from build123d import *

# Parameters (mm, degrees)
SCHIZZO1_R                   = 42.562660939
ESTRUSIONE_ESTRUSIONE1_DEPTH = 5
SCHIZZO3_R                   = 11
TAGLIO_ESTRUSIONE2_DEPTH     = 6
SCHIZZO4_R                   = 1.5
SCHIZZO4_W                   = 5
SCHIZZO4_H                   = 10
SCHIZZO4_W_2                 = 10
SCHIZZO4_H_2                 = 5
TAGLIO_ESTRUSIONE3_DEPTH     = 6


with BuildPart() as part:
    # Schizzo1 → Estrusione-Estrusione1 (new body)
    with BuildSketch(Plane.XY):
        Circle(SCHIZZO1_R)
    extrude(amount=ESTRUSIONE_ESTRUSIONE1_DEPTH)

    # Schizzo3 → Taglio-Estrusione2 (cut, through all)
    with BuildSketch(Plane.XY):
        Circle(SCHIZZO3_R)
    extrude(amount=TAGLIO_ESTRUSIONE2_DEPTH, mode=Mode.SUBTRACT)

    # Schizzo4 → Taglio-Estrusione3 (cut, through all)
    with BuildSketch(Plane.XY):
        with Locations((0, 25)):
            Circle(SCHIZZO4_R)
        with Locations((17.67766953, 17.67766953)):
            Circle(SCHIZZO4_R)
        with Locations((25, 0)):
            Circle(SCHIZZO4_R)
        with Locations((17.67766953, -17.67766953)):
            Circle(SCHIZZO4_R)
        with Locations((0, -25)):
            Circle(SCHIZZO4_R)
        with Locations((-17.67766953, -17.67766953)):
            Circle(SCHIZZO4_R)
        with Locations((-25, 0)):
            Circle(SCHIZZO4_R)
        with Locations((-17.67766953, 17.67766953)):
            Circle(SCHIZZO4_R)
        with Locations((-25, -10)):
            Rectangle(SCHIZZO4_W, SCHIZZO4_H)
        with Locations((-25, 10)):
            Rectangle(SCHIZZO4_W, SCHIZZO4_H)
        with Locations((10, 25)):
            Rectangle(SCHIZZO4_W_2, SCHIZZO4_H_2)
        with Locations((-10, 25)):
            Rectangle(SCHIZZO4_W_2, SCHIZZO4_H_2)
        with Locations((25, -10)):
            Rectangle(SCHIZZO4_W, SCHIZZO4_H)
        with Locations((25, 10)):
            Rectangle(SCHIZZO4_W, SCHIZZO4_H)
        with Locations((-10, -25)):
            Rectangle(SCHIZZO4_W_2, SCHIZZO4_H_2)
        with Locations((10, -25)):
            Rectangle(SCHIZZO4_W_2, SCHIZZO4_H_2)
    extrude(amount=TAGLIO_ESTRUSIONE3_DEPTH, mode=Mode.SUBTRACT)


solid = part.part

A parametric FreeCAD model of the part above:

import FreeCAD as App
import Part
import Sketcher

V = App.Vector

doc = App.newDocument("Part")
body = doc.addObject("PartDesign::Body", "Body")

# Sketch on XY plane
sketch1 = doc.addObject("Sketcher::SketchObject", "Sketch")
body.addObject(sketch1)
sketch1.AttachmentSupport = (doc.XY_Plane, [""])
sketch1.MapMode = "FlatFace"
sketch1.addGeometry(Part.Circle(V(0, 0, 0), V(0, 0, 1), 43), False)
sketch1.addConstraint([
    Sketcher.Constraint("Coincident", 0, 3, -1, 1),
    Sketcher.Constraint("Diameter", 0, 85.125322),
])
pad1 = doc.addObject("PartDesign::Pad", "Pad")
body.addObject(pad1)
pad1.Profile = sketch1
pad1.Length = 5

# Sketch on XY plane
sketch2 = doc.addObject("Sketcher::SketchObject", "Sketch001")
body.addObject(sketch2)
sketch2.AttachmentSupport = (doc.XY_Plane, [""])
sketch2.MapMode = "FlatFace"
sketch2.addGeometry(Part.Circle(V(0, 0, 0), V(0, 0, 1), 11), False)
sketch2.addConstraint([
    Sketcher.Constraint("Coincident", 0, 3, -1, 1),
    Sketcher.Constraint("Diameter", 0, 22.0),
])
pocket1 = doc.addObject("PartDesign::Pocket", "Pocket")
body.addObject(pocket1)
pocket1.Profile = sketch2
pocket1.Type = "ThroughAll"
pocket1.Reversed = True

# Sketch on XY plane
sketch3 = doc.addObject("Sketcher::SketchObject", "Sketch002")
body.addObject(sketch3)
sketch3.AttachmentSupport = (doc.XY_Plane, [""])
sketch3.MapMode = "FlatFace"
sketch3.addGeometry([
    Part.Circle(V(0, 25, 0), V(0, 0, 1), 1.5),  # 0
    Part.Circle(V(17.7, 17.7, 0), V(0, 0, 1), 1.5),  # 1
    Part.Circle(V(25, 0, 0), V(0, 0, 1), 1.5),  # 2
    Part.Circle(V(17.7, -17.7, 0), V(0, 0, 1), 1.5),  # 3
    Part.Circle(V(0, -25, 0), V(0, 0, 1), 1.5),  # 4
    Part.Circle(V(-17.7, -17.7, 0), V(0, 0, 1), 1.5),  # 5
    Part.Circle(V(-25, 0, 0), V(0, 0, 1), 1.5),  # 6
    Part.Circle(V(-17.7, 17.7, 0), V(0, 0, 1), 1.5),  # 7
    Part.LineSegment(V(-27.5, -5, 0), V(-27.5, -15, 0)),  # 8
    Part.LineSegment(V(-27.5, -15, 0), V(-22.5, -15, 0)),  # 9
    Part.LineSegment(V(-22.5, -15, 0), V(-22.5, -5, 0)),  # 10
    Part.LineSegment(V(-22.5, -5, 0), V(-27.5, -5, 0)),  # 11
    Part.LineSegment(V(-27.5, 15, 0), V(-27.5, 5, 0)),  # 12
    Part.LineSegment(V(-27.5, 5, 0), V(-22.5, 5, 0)),  # 13
    Part.LineSegment(V(-22.5, 5, 0), V(-22.5, 15, 0)),  # 14
    Part.LineSegment(V(-22.5, 15, 0), V(-27.5, 15, 0)),  # 15
    Part.LineSegment(V(5, 27.5, 0), V(5, 22.5, 0)),  # 16
    Part.LineSegment(V(5, 22.5, 0), V(15, 22.5, 0)),  # 17
    Part.LineSegment(V(15, 22.5, 0), V(15, 27.5, 0)),  # 18
    Part.LineSegment(V(15, 27.5, 0), V(5, 27.5, 0)),  # 19
    Part.LineSegment(V(-15, 27.5, 0), V(-15, 22.5, 0)),  # 20
    Part.LineSegment(V(-15, 22.5, 0), V(-5, 22.5, 0)),  # 21
    Part.LineSegment(V(-5, 22.5, 0), V(-5, 27.5, 0)),  # 22
    Part.LineSegment(V(-5, 27.5, 0), V(-15, 27.5, 0)),  # 23
    Part.LineSegment(V(22.5, -5, 0), V(22.5, -15, 0)),  # 24
    Part.LineSegment(V(22.5, -15, 0), V(27.5, -15, 0)),  # 25
    Part.LineSegment(V(27.5, -15, 0), V(27.5, -5, 0)),  # 26
    Part.LineSegment(V(27.5, -5, 0), V(22.5, -5, 0)),  # 27
    Part.LineSegment(V(22.5, 15, 0), V(22.5, 5, 0)),  # 28
    Part.LineSegment(V(22.5, 5, 0), V(27.5, 5, 0)),  # 29
    Part.LineSegment(V(27.5, 5, 0), V(27.5, 15, 0)),  # 30
    Part.LineSegment(V(27.5, 15, 0), V(22.5, 15, 0)),  # 31
    Part.LineSegment(V(-15, -22.5, 0), V(-15, -27.5, 0)),  # 32
    Part.LineSegment(V(-15, -27.5, 0), V(-5, -27.5, 0)),  # 33
    Part.LineSegment(V(-5, -27.5, 0), V(-5, -22.5, 0)),  # 34
    Part.LineSegment(V(-5, -22.5, 0), V(-15, -22.5, 0)),  # 35
    Part.LineSegment(V(5, -22.5, 0), V(5, -27.5, 0)),  # 36
    Part.LineSegment(V(5, -27.5, 0), V(15, -27.5, 0)),  # 37
    Part.LineSegment(V(15, -27.5, 0), V(15, -22.5, 0)),  # 38
    Part.LineSegment(V(15, -22.5, 0), V(5, -22.5, 0)),  # 39
], False)
sketch3.addConstraint([
    Sketcher.Constraint("Coincident", 8, 2, 9, 1),
    Sketcher.Constraint("Coincident", 9, 2, 10, 1),
    Sketcher.Constraint("Coincident", 10, 2, 11, 1),
    Sketcher.Constraint("Coincident", 11, 2, 8, 1),
    Sketcher.Constraint("Coincident", 12, 2, 13, 1),
    Sketcher.Constraint("Coincident", 13, 2, 14, 1),
    Sketcher.Constraint("Coincident", 14, 2, 15, 1),
    Sketcher.Constraint("Coincident", 15, 2, 12, 1),
    Sketcher.Constraint("Coincident", 16, 2, 17, 1),
    Sketcher.Constraint("Coincident", 17, 2, 18, 1),
    Sketcher.Constraint("Coincident", 18, 2, 19, 1),
    Sketcher.Constraint("Coincident", 19, 2, 16, 1),
    Sketcher.Constraint("Coincident", 20, 2, 21, 1),
    Sketcher.Constraint("Coincident", 21, 2, 22, 1),
    Sketcher.Constraint("Coincident", 22, 2, 23, 1),
    Sketcher.Constraint("Coincident", 23, 2, 20, 1),
    Sketcher.Constraint("Coincident", 24, 2, 25, 1),
    Sketcher.Constraint("Coincident", 25, 2, 26, 1),
    Sketcher.Constraint("Coincident", 26, 2, 27, 1),
    Sketcher.Constraint("Coincident", 27, 2, 24, 1),
    Sketcher.Constraint("Coincident", 28, 2, 29, 1),
    Sketcher.Constraint("Coincident", 29, 2, 30, 1),
    Sketcher.Constraint("Coincident", 30, 2, 31, 1),
    Sketcher.Constraint("Coincident", 31, 2, 28, 1),
    Sketcher.Constraint("Coincident", 32, 2, 33, 1),
    Sketcher.Constraint("Coincident", 33, 2, 34, 1),
    Sketcher.Constraint("Coincident", 34, 2, 35, 1),
    Sketcher.Constraint("Coincident", 35, 2, 32, 1),
    Sketcher.Constraint("Coincident", 36, 2, 37, 1),
    Sketcher.Constraint("Coincident", 37, 2, 38, 1),
    Sketcher.Constraint("Coincident", 38, 2, 39, 1),
    Sketcher.Constraint("Coincident", 39, 2, 36, 1),
    Sketcher.Constraint("Vertical", 8),
    Sketcher.Constraint("Horizontal", 9),
    Sketcher.Constraint("Vertical", 10),
    Sketcher.Constraint("Horizontal", 11),
    Sketcher.Constraint("Vertical", 12),
    Sketcher.Constraint("Horizontal", 13),
    Sketcher.Constraint("Vertical", 14),
    Sketcher.Constraint("Horizontal", 15),
    Sketcher.Constraint("Vertical", 16),
    Sketcher.Constraint("Horizontal", 17),
    Sketcher.Constraint("Vertical", 18),
    Sketcher.Constraint("Horizontal", 19),
    Sketcher.Constraint("Vertical", 20),
    Sketcher.Constraint("Horizontal", 21),
    Sketcher.Constraint("Vertical", 22),
    Sketcher.Constraint("Horizontal", 23),
    Sketcher.Constraint("Vertical", 24),
    Sketcher.Constraint("Horizontal", 25),
    Sketcher.Constraint("Vertical", 26),
    Sketcher.Constraint("Horizontal", 27),
    Sketcher.Constraint("Vertical", 28),
    Sketcher.Constraint("Horizontal", 29),
    Sketcher.Constraint("Vertical", 30),
    Sketcher.Constraint("Horizontal", 31),
    Sketcher.Constraint("Vertical", 32),
    Sketcher.Constraint("Horizontal", 33),
    Sketcher.Constraint("Vertical", 34),
    Sketcher.Constraint("Horizontal", 35),
    Sketcher.Constraint("Vertical", 36),
    Sketcher.Constraint("Horizontal", 37),
    Sketcher.Constraint("Vertical", 38),
    Sketcher.Constraint("Horizontal", 39),
    Sketcher.Constraint("Equal", 0, 1),
    Sketcher.Constraint("Equal", 1, 2),
    Sketcher.Constraint("Equal", 2, 3),
    Sketcher.Constraint("Equal", 3, 4),
    Sketcher.Constraint("Equal", 4, 5),
    Sketcher.Constraint("Equal", 5, 6),
    Sketcher.Constraint("Equal", 6, 7),
    Sketcher.Constraint("Symmetric", 0, 3, 4, 3, -1, 1),
    Sketcher.Constraint("Symmetric", 1, 3, 5, 3, -1, 1),
    Sketcher.Constraint("Symmetric", 2, 3, 6, 3, -1, 1),
    Sketcher.Constraint("Symmetric", 3, 3, 7, 3, -1, 1),
    Sketcher.Constraint("Symmetric", 14, 2, 24, 2, -1, 1),
    Sketcher.Constraint("Symmetric", 12, 2, 26, 2, -1, 1),
    Sketcher.Constraint("Symmetric", 10, 2, 28, 2, -1, 1),
    Sketcher.Constraint("Symmetric", 8, 2, 30, 2, -1, 1),
    Sketcher.Constraint("Symmetric", 18, 2, 32, 2, -1, 1),
    Sketcher.Constraint("Symmetric", 16, 2, 34, 2, -1, 1),
    Sketcher.Constraint("Symmetric", 22, 2, 36, 2, -1, 1),
    Sketcher.Constraint("Symmetric", 20, 2, 38, 2, -1, 1),
    Sketcher.Constraint("Symmetric", 3, 3, 5, 3, -2),
    Sketcher.Constraint("Symmetric", 17, 2, 20, 2, -2),
    Sketcher.Constraint("Symmetric", 19, 2, 22, 2, -2),
    Sketcher.Constraint("Symmetric", 9, 2, 24, 2, -2),
    Sketcher.Constraint("Symmetric", 11, 2, 26, 2, -2),
    Sketcher.Constraint("PointOnObject", 0, 3, -2),
    Sketcher.Constraint("PointOnObject", 2, 3, -1),
    Sketcher.Constraint("Equal", 39, 8),
    Sketcher.Constraint("Equal", 31, 16),
    Sketcher.Constraint("Diameter", 0, 3.0),
    Sketcher.Constraint("DistanceX", 9, 1, 9, 2, 5.0),
    Sketcher.Constraint("DistanceX", 17, 1, 17, 2, 10.0),
    Sketcher.Constraint("DistanceY", -1, 1, 0, 3, 25.0),
    Sketcher.Constraint("DistanceX", -1, 1, 2, 3, 25.0),
    Sketcher.Constraint("DistanceY", 8, 2, -1, 1, 15.0),
    Sketcher.Constraint("DistanceX", -1, 1, 16, 2, 5.0),
    Sketcher.Constraint("DistanceX", 8, 2, -1, 1, 27.5),
    Sketcher.Constraint("DistanceY", -1, 1, 16, 2, 22.5),
    Sketcher.Constraint("DistanceX", -1, 1, 1, 3, 17.67767),
    Sketcher.Constraint("DistanceY", -1, 1, 1, 3, 17.67767),
])
pocket2 = doc.addObject("PartDesign::Pocket", "Pocket001")
body.addObject(pocket2)
pocket2.Profile = sketch3
pocket2.Type = "ThroughAll"
pocket2.Reversed = True

doc.recompute()
